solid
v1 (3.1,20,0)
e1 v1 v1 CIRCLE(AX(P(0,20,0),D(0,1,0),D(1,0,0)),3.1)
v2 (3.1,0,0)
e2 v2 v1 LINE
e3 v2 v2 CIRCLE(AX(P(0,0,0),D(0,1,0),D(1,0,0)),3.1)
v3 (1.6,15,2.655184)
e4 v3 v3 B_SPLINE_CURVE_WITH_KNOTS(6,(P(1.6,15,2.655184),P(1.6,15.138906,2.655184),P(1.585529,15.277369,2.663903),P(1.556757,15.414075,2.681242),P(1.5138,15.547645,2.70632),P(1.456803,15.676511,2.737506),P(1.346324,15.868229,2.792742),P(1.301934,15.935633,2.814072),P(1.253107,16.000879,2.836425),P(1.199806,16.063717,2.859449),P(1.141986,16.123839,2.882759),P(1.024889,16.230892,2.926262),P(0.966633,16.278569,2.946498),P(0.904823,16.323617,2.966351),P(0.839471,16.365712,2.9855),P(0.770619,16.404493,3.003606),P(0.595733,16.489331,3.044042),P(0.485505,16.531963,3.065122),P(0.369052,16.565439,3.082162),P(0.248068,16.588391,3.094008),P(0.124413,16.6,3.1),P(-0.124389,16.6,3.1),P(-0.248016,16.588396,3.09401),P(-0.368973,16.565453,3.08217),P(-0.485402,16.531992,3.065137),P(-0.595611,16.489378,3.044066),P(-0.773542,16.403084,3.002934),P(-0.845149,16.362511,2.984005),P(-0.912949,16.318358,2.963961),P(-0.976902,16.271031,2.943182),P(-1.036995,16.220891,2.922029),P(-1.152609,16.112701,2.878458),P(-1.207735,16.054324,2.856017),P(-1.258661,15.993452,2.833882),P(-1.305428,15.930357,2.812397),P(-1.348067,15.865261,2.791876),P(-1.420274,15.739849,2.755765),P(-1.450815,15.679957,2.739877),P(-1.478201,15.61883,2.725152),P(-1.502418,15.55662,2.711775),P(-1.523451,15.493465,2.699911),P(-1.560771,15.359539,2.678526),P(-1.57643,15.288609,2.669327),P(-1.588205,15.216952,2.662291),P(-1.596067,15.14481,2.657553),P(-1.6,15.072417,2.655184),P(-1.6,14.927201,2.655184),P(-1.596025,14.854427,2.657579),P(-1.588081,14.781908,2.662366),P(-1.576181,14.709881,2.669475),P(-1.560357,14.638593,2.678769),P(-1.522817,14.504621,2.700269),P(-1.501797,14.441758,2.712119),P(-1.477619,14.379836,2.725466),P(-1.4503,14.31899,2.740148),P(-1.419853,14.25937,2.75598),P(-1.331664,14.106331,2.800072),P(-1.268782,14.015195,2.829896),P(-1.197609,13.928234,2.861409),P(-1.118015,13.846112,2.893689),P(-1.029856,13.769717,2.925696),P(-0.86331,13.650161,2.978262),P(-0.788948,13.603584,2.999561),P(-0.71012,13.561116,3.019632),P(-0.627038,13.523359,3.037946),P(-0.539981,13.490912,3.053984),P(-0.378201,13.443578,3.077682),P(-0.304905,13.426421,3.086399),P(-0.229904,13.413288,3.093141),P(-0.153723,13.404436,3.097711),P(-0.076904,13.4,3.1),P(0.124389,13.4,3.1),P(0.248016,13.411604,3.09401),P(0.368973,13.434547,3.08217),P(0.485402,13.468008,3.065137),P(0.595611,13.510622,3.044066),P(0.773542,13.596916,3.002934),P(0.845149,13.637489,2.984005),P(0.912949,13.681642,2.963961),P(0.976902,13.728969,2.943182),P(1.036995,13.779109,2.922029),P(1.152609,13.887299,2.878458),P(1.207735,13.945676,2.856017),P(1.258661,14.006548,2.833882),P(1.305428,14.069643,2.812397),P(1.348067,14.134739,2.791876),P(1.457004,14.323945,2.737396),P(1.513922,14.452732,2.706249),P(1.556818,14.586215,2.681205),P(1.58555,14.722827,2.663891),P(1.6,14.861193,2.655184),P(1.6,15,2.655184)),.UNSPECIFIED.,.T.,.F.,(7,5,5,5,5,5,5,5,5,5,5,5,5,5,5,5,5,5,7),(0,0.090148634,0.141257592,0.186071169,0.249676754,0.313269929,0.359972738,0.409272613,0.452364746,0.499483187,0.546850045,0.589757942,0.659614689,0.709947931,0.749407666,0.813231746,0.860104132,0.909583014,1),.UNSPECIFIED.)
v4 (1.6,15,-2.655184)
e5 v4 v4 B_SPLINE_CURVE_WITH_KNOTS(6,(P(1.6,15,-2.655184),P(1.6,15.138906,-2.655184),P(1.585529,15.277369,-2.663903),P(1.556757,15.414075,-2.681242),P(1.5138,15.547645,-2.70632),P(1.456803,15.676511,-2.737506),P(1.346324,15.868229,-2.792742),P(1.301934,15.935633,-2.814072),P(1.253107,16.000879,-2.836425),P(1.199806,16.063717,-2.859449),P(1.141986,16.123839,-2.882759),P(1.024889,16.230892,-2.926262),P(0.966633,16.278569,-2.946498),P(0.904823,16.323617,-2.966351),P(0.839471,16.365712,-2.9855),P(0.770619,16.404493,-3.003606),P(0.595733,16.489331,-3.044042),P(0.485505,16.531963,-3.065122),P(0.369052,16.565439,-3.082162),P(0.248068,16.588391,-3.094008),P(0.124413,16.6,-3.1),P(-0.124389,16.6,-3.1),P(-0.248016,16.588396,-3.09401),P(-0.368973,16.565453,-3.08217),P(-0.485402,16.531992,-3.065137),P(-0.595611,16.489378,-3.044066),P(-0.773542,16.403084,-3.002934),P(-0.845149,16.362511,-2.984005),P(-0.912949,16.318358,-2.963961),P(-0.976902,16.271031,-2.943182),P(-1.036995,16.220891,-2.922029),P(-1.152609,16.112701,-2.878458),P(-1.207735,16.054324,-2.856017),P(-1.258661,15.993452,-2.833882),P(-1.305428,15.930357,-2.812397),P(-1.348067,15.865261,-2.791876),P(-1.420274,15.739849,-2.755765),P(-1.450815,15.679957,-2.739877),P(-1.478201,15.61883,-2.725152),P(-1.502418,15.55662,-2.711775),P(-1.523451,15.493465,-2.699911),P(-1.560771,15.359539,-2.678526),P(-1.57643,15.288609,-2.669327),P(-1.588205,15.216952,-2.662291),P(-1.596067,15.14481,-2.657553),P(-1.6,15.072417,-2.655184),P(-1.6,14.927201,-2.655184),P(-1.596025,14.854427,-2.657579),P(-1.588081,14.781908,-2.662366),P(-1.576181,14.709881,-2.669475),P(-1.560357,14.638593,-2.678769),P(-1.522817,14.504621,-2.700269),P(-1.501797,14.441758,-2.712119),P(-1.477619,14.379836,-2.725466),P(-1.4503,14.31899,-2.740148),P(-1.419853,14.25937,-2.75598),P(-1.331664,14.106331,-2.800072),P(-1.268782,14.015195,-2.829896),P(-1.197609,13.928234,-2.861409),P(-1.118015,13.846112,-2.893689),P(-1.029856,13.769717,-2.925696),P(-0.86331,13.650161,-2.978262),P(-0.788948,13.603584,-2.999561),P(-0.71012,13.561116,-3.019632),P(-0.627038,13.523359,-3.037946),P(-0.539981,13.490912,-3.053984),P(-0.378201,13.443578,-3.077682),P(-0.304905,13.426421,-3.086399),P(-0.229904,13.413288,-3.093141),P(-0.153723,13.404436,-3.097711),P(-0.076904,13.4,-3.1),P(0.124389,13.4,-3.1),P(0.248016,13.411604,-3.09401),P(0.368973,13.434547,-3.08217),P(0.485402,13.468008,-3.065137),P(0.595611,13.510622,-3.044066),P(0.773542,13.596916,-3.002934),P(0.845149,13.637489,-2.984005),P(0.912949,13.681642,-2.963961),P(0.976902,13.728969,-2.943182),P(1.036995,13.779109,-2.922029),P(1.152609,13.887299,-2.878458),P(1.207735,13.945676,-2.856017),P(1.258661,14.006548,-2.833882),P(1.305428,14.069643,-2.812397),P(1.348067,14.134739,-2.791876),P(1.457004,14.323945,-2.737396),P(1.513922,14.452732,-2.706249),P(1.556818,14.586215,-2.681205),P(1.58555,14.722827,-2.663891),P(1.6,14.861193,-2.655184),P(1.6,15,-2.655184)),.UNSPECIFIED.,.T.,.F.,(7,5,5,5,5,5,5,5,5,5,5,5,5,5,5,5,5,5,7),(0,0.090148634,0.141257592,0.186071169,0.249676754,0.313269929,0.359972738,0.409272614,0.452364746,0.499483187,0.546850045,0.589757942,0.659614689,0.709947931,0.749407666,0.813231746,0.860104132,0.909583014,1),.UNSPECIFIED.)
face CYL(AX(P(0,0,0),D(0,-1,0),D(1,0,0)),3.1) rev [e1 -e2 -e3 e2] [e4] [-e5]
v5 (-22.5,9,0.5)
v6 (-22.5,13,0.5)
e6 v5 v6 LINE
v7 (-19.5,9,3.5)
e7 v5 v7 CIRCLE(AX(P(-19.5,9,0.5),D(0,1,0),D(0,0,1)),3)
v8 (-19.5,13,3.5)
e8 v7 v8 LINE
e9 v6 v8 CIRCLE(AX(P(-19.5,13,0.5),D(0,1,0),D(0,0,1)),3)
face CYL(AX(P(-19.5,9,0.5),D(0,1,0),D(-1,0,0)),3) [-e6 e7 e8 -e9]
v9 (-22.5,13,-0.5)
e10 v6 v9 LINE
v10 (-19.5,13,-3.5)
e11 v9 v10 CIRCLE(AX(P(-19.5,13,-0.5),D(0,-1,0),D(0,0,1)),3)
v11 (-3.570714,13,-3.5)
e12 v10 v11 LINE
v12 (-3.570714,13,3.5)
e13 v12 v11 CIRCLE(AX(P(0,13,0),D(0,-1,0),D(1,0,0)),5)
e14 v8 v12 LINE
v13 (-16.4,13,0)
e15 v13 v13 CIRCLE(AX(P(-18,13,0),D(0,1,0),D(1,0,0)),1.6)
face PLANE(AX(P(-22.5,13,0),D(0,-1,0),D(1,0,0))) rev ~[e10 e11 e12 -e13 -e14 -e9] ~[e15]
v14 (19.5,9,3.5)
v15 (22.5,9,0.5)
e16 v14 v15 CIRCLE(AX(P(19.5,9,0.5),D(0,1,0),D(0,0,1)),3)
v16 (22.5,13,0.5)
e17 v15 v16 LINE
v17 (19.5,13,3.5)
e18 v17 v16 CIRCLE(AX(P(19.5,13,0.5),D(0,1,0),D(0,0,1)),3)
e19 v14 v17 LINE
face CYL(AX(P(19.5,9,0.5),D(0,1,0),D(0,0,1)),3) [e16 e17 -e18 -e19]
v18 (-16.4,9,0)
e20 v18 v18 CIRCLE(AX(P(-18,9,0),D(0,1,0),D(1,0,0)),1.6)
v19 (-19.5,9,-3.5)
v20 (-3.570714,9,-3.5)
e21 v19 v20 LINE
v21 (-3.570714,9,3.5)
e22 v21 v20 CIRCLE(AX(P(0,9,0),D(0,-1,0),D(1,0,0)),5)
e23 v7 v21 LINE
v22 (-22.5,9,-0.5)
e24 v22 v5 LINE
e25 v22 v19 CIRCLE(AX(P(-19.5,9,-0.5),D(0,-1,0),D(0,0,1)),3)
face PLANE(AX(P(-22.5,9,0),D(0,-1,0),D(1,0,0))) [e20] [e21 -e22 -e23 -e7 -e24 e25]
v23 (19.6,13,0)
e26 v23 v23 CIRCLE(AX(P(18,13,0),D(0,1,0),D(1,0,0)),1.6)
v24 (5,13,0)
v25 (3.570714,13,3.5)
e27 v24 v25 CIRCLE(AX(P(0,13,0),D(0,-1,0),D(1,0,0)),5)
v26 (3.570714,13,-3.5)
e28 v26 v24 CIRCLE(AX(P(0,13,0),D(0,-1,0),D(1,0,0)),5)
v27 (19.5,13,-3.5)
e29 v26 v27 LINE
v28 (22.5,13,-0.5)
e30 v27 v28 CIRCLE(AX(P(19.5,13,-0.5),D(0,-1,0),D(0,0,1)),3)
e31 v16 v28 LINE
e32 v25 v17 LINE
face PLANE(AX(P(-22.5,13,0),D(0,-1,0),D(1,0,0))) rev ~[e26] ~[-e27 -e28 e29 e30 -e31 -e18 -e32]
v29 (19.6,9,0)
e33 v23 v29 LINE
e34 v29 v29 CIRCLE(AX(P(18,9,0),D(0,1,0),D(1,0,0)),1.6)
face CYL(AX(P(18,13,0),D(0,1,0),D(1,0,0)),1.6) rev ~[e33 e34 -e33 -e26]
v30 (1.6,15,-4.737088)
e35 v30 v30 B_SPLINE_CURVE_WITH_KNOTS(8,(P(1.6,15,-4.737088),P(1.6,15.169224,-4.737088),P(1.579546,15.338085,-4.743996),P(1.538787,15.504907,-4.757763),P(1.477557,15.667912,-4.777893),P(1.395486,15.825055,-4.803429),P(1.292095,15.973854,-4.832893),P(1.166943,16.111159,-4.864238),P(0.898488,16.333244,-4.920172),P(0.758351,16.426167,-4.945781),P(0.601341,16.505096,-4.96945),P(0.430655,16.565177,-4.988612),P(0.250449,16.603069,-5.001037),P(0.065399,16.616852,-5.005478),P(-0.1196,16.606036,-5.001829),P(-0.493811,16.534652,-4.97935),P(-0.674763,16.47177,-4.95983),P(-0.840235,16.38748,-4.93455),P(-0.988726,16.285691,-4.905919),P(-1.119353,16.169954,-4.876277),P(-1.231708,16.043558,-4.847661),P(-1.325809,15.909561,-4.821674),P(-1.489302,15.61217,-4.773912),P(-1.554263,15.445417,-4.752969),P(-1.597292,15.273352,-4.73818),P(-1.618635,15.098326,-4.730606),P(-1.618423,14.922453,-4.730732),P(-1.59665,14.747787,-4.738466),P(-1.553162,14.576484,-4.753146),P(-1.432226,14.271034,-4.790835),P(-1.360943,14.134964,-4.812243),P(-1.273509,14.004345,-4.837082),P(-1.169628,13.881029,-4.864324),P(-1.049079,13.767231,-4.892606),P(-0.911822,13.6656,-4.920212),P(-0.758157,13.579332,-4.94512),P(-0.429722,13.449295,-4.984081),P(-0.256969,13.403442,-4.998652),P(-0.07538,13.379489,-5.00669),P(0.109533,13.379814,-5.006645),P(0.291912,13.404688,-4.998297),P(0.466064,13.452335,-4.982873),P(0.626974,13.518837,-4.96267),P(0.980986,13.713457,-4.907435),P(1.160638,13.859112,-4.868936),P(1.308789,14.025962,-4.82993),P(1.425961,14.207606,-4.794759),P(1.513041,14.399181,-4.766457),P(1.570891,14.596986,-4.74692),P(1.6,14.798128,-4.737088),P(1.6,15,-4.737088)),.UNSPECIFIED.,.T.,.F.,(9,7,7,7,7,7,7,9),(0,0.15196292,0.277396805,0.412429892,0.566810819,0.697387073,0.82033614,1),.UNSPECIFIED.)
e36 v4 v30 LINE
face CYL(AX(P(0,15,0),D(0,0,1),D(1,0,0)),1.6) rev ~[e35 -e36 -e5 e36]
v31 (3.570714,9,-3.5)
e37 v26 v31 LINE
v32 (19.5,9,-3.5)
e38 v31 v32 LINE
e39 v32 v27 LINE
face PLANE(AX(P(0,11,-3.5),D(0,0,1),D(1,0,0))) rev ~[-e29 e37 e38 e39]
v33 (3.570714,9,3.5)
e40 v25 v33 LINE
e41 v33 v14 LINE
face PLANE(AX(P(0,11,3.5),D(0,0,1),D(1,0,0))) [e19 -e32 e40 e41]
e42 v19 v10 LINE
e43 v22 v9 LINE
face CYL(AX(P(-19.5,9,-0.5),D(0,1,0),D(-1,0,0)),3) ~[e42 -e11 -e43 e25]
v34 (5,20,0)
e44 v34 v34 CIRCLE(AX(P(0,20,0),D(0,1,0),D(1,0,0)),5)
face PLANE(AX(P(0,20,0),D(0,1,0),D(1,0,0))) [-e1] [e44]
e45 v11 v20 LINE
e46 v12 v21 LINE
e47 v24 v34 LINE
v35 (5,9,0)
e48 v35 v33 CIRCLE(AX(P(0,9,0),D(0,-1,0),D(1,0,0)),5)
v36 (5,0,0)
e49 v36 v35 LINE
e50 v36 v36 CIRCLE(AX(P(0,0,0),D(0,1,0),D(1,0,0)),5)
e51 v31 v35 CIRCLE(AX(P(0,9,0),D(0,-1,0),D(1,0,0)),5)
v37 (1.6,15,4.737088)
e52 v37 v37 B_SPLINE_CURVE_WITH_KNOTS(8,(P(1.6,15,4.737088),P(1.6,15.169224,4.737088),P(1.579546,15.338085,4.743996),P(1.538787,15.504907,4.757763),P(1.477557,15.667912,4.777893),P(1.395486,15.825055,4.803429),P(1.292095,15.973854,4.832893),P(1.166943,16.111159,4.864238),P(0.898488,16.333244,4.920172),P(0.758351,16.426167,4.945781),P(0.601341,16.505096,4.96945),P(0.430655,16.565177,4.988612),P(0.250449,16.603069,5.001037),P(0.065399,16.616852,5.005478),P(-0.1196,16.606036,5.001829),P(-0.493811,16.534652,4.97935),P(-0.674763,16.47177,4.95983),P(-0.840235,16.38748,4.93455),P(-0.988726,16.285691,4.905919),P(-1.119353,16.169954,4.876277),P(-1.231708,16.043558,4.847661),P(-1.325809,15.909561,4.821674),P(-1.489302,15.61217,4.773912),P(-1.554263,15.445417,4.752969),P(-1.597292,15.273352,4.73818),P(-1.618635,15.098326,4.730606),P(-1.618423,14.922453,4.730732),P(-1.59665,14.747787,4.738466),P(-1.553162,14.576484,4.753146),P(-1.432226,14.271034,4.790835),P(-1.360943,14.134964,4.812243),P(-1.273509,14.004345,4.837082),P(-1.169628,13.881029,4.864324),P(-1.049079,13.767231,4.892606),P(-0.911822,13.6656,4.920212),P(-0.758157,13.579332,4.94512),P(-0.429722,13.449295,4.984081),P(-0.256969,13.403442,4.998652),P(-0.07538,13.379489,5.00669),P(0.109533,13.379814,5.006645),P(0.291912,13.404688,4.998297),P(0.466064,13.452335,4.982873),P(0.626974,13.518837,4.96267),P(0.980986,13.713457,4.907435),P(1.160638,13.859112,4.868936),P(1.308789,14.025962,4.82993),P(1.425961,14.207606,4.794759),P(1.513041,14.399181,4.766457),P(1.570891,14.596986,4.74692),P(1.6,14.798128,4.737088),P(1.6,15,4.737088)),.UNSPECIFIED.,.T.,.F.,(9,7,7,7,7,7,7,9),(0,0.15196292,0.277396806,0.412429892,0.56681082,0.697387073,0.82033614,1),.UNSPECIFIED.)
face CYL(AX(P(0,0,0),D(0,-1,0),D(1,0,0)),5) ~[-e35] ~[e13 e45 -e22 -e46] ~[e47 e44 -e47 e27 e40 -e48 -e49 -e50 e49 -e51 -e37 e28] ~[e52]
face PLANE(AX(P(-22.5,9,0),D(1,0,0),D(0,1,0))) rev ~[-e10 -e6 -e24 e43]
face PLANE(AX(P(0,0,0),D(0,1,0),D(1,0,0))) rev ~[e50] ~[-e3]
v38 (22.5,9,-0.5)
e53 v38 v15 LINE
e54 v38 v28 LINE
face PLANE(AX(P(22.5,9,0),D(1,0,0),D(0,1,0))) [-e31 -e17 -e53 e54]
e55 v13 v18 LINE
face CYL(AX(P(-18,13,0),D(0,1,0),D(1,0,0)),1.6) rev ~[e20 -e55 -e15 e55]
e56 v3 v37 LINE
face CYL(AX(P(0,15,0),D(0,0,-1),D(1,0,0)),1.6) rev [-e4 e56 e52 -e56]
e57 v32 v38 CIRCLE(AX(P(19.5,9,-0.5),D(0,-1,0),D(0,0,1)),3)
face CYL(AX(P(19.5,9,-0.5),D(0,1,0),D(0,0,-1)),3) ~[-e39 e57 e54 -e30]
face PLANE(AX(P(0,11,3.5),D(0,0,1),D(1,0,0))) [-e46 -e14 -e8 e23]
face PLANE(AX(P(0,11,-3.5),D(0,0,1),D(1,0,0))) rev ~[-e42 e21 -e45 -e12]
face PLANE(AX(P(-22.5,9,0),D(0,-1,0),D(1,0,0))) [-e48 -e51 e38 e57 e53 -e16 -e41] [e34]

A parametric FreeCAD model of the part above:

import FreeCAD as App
import Part
import Sketcher
Q = App.Units.Quantity


def edges_at(feature, points):
    """Names of the edges that pass closest to the given points."""
    edges = feature.Shape.Edges
    near = lambda p: min(range(len(edges)), key=lambda i: edges[i].distToShape(Part.Vertex(*p))[0])
    return sorted({f"Edge{near(p) + 1}" for p in points})


def add_polygon(sketch, points):
    """Adds a closed chain of lines whose ends are joined by coincident constraints."""
    first, n = sketch.GeometryCount, len(points)
    for a, b in zip(points, points[1:] + points[:1]):
        sketch.addGeometry(Part.LineSegment(App.Vector(*a, 0), App.Vector(*b, 0)), False)
    for i in range(n):
        sketch.addConstraint(Sketcher.Constraint("Coincident", first + i, 2, first + (i + 1) % n, 1))

doc = App.newDocument("Part")
body = doc.addObject("PartDesign::Body", "Body")

# Sketch on XZ plane
sketch1 = body.newObject("Sketcher::SketchObject", "Sketch")
sketch1.AttachmentSupport = (doc.getObject("XZ_Plane"), [""])
sketch1.MapMode = "FlatFace"
sketch1.addGeometry(Part.Circle(App.Vector(0, 0, 0), App.Vector(0, 0, 1), 5), False)
sketch1.addGeometry(Part.Circle(App.Vector(0, 0, 0), App.Vector(0, 0, 1), 3.1), False)
sketch1.addConstraint(Sketcher.Constraint("Coincident", 0, 3, -1, 1))
sketch1.addConstraint(Sketcher.Constraint("Coincident", 1, 3, -1, 1))
sketch1.addConstraint(Sketcher.Constraint("Diameter", 0, Q("10 mm")))
sketch1.addConstraint(Sketcher.Constraint("Diameter", 1, Q("6.2 mm")))
pad1 = body.newObject("PartDesign::Pad", "Pad")
pad1.Profile = sketch1
pad1.Length = 20
pad1.Reversed = True

# Sketch on XY plane
sketch2 = body.newObject("Sketcher::SketchObject", "Sketch001")
sketch2.AttachmentSupport = (doc.getObject("XY_Plane"), [""])
sketch2.MapMode = "FlatFace"
add_polygon(sketch2, [(-22.5, 13), (-22.5, 9), (22.5, 9), (22.5, 13)])  # lines 0-3
sketch2.addConstraint(Sketcher.Constraint("Vertical", 0))
sketch2.addConstraint(Sketcher.Constraint("Horizontal", 1))
sketch2.addConstraint(Sketcher.Constraint("Vertical", 2))
sketch2.addConstraint(Sketcher.Constraint("Horizontal", 3))
sketch2.addConstraint(Sketcher.Constraint("DistanceX", 1, 1, 1, 2, Q("45 mm")))
sketch2.addConstraint(Sketcher.Constraint("DistanceY", 0, 2, 0, 1, Q("4 mm")))
sketch2.addConstraint(Sketcher.Constraint("DistanceY", -1, 1, 0, 2, Q("9 mm")))
sketch2.addConstraint(Sketcher.Constraint("DistanceX", 0, 2, -1, 1, Q("22.5 mm")))
pad2 = body.newObject("PartDesign::Pad", "Pad001")
pad2.Profile = sketch2
pad2.Length = 7
pad2.Midplane = True

# Sketch on XZ plane
sketch3 = body.newObject("Sketcher::SketchObject", "Sketch002")
sketch3.AttachmentSupport = (doc.getObject("XZ_Plane"), [""])
sketch3.MapMode = "FlatFace"
sketch3.AttachmentOffset = App.Placement(App.Vector(0, 0, -13), App.Rotation())
sketch3.addGeometry(Part.Circle(App.Vector(-18, 0, 0), App.Vector(0, 0, 1), 1.6), False)
sketch3.addGeometry(Part.Circle(App.Vector(18, 0, 0), App.Vector(0, 0, 1), 1.6), False)
sketch3.addConstraint(Sketcher.Constraint("Equal", 0, 1))
sketch3.addConstraint(Sketcher.Constraint("Symmetric", 0, 3, 1, 3, -1, 1))
sketch3.addConstraint(Sketcher.Constraint("PointOnObject", 0, 3, -1))
sketch3.addConstraint(Sketcher.Constraint("Diameter", 0, Q("3.2 mm")))
sketch3.addConstraint(Sketcher.Constraint("DistanceX", 0, 3, -1, 1, Q("18 mm")))
pocket1 = body.newObject("PartDesign::Pocket", "Pocket")
pocket1.Profile = sketch3
pocket1.Type = "ThroughAll"
pocket1.Reversed = True
doc.recompute()

fillet = body.newObject("PartDesign::Fillet", "Fillet")
fillet.Base = (pocket1, edges_at(pocket1, [
    (22.5, 11, 3.5),
    (-22.5, 11, 3.5),
    (-22.5, 11, -3.5),
    (22.5, 11, -3.5),
]))
fillet.Radius = 3

# Sketch on XY plane
sketch4 = body.newObject("Sketcher::SketchObject", "Sketch003")
sketch4.AttachmentSupport = (doc.getObject("XY_Plane"), [""])
sketch4.MapMode = "FlatFace"
sketch4.addGeometry(Part.Circle(App.Vector(0, 15, 0), App.Vector(0, 0, 1), 1.6), False)
sketch4.addConstraint(Sketcher.Constraint("PointOnObject", 0, 3, -2))
sketch4.addConstraint(Sketcher.Constraint("Diameter", 0, Q("3.2 mm")))
sketch4.addConstraint(Sketcher.Constraint("DistanceY", -1, 1, 0, 3, Q("15 mm")))
pocket2 = body.newObject("PartDesign::Pocket", "Pocket001")
pocket2.Profile = sketch4
pocket2.Type = "ThroughAll"
pocket2.Midplane = True

# Sketch on XZ plane
sketch5 = body.newObject("Sketcher::SketchObject", "Sketch004")
sketch5.AttachmentSupport = (doc.getObject("XZ_Plane"), [""])
sketch5.MapMode = "FlatFace"
sketch5.AttachmentOffset = App.Placement(App.Vector(0, 0, -13), App.Rotation())
sketch5.addGeometry(Part.Circle(App.Vector(0, 0, 0), App.Vector(0, 0, 1), 3.1), False)
sketch5.addConstraint(Sketcher.Constraint("Coincident", 0, 3, -1, 1))
sketch5.addConstraint(Sketcher.Constraint("Diameter", 0, Q("6.2 mm")))
pocket3 = body.newObject("PartDesign::Pocket", "Pocket002")
pocket3.Profile = sketch5
pocket3.Type = "ThroughAll"
pocket3.Midplane = True

doc.recompute()
